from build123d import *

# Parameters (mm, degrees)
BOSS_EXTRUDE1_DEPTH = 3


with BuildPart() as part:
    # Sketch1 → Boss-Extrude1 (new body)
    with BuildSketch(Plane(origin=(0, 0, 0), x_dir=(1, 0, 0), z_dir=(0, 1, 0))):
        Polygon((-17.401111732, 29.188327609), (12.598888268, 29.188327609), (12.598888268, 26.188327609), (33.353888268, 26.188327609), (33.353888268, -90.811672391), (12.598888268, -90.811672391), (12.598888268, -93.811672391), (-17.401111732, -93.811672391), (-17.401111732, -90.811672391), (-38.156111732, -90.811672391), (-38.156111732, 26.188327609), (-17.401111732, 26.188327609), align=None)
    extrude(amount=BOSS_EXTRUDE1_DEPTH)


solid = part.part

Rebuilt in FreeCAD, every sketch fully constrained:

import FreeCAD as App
import Part
import Sketcher
from FreeCAD import Vector


def add_polygon(sketch, points):
    """Adds a closed chain of lines whose ends are joined by coincident constraints."""
    first, n = sketch.GeometryCount, len(points)
    for a, b in zip(points, points[1:] + points[:1]):
        sketch.addGeometry(Part.LineSegment(App.Vector(*a, 0), App.Vector(*b, 0)), False)
    for i in range(n):
        sketch.addConstraint(Sketcher.Constraint("Coincident", first + i, 2, first + (i + 1) % n, 1))

doc = App.newDocument("Part")
params = doc.addObject("Spreadsheet::Sheet", "Params")
for row, (alias, value) in enumerate([
    ("sketch1_width", "30 mm"),
    ("sketch1_height", "3 mm"),
    ("sketch1_height2", "117 mm"),
    ("pad1_length", "3 mm"),
], start=1):
    params.set(f"A{row}", alias)
    params.set(f"B{row}", "=" + value)
    params.setAlias(f"B{row}", alias)

body = doc.addObject("PartDesign::Body", "Body")

# Sketch on XZ plane
sketch1 = body.newObject("Sketcher::SketchObject", "Sketch")
sketch1.AttachmentSupport = (doc.getObject("XZ_Plane"), [""])
sketch1.MapMode = "FlatFace"
add_polygon(sketch1, [(12.6, -29.2), (-17.4, -29.2), (-17.4, -26.2), (-38.2, -26.2), (-38.2, 90.8), (-17.4, 90.8), (-17.4, 93.8), (12.6, 93.8), (12.6, 90.8), (33.4, 90.8), (33.4, -26.2), (12.6, -26.2)])  # lines 0-11
sketch1.addConstraint(Sketcher.Constraint("Horizontal", 0))
sketch1.addConstraint(Sketcher.Constraint("Vertical", 1))
sketch1.addConstraint(Sketcher.Constraint("Horizontal", 2))
sketch1.addConstraint(Sketcher.Constraint("Vertical", 3))
sketch1.addConstraint(Sketcher.Constraint("Horizontal", 4))
sketch1.addConstraint(Sketcher.Constraint("Vertical", 5))
sketch1.addConstraint(Sketcher.Constraint("Horizontal", 6))
sketch1.addConstraint(Sketcher.Constraint("Vertical", 7))
sketch1.addConstraint(Sketcher.Constraint("Horizontal", 8))
sketch1.addConstraint(Sketcher.Constraint("Vertical", 9))
sketch1.addConstraint(Sketcher.Constraint("Horizontal", 10))
sketch1.addConstraint(Sketcher.Constraint("Vertical", 11))
sketch1.addConstraint(Sketcher.Constraint("Horizontal", 4, 2, 7, 2))
sketch1.addConstraint(Sketcher.Constraint("Horizontal", 2, 2, 9, 2))
sketch1.addConstraint(Sketcher.Constraint("Vertical", 1, 2, 4, 2))
sketch1.addConstraint(Sketcher.Constraint("Vertical", 7, 2, 10, 2))
sketch1.addConstraint(Sketcher.Constraint("Equal", 4, 8))
sketch1.addConstraint(Sketcher.Constraint("Equal", 1, 5))
sketch1.addConstraint(Sketcher.Constraint("DistanceX", 0, 2, 0, 1, 30.0))
sketch1.addConstraint(Sketcher.Constraint("DistanceY", 1, 1, 1, 2, 3.0))
sketch1.addConstraint(Sketcher.Constraint("DistanceY", 3, 1, 3, 2, 117.0))
sketch1.addConstraint(Sketcher.Constraint("DistanceX", 2, 2, 2, 1, 20.755))
sketch1.addConstraint(Sketcher.Constraint("DistanceX", 0, 2, -1, 1, 17.401112))
sketch1.addConstraint(Sketcher.Constraint("DistanceY", 0, 2, -1, 1, 29.188328))
sketch1.setExpression("Constraints[30]", "Params.sketch1_width")
sketch1.setExpression("Constraints[31]", "Params.sketch1_height")
sketch1.setExpression("Constraints[32]", "Params.sketch1_height2")
pad1 = body.newObject("PartDesign::Pad", "Pad")
pad1.Profile = sketch1
pad1.setExpression("Length", "Params.pad1_length")
pad1.Reversed = True

doc.recompute()
